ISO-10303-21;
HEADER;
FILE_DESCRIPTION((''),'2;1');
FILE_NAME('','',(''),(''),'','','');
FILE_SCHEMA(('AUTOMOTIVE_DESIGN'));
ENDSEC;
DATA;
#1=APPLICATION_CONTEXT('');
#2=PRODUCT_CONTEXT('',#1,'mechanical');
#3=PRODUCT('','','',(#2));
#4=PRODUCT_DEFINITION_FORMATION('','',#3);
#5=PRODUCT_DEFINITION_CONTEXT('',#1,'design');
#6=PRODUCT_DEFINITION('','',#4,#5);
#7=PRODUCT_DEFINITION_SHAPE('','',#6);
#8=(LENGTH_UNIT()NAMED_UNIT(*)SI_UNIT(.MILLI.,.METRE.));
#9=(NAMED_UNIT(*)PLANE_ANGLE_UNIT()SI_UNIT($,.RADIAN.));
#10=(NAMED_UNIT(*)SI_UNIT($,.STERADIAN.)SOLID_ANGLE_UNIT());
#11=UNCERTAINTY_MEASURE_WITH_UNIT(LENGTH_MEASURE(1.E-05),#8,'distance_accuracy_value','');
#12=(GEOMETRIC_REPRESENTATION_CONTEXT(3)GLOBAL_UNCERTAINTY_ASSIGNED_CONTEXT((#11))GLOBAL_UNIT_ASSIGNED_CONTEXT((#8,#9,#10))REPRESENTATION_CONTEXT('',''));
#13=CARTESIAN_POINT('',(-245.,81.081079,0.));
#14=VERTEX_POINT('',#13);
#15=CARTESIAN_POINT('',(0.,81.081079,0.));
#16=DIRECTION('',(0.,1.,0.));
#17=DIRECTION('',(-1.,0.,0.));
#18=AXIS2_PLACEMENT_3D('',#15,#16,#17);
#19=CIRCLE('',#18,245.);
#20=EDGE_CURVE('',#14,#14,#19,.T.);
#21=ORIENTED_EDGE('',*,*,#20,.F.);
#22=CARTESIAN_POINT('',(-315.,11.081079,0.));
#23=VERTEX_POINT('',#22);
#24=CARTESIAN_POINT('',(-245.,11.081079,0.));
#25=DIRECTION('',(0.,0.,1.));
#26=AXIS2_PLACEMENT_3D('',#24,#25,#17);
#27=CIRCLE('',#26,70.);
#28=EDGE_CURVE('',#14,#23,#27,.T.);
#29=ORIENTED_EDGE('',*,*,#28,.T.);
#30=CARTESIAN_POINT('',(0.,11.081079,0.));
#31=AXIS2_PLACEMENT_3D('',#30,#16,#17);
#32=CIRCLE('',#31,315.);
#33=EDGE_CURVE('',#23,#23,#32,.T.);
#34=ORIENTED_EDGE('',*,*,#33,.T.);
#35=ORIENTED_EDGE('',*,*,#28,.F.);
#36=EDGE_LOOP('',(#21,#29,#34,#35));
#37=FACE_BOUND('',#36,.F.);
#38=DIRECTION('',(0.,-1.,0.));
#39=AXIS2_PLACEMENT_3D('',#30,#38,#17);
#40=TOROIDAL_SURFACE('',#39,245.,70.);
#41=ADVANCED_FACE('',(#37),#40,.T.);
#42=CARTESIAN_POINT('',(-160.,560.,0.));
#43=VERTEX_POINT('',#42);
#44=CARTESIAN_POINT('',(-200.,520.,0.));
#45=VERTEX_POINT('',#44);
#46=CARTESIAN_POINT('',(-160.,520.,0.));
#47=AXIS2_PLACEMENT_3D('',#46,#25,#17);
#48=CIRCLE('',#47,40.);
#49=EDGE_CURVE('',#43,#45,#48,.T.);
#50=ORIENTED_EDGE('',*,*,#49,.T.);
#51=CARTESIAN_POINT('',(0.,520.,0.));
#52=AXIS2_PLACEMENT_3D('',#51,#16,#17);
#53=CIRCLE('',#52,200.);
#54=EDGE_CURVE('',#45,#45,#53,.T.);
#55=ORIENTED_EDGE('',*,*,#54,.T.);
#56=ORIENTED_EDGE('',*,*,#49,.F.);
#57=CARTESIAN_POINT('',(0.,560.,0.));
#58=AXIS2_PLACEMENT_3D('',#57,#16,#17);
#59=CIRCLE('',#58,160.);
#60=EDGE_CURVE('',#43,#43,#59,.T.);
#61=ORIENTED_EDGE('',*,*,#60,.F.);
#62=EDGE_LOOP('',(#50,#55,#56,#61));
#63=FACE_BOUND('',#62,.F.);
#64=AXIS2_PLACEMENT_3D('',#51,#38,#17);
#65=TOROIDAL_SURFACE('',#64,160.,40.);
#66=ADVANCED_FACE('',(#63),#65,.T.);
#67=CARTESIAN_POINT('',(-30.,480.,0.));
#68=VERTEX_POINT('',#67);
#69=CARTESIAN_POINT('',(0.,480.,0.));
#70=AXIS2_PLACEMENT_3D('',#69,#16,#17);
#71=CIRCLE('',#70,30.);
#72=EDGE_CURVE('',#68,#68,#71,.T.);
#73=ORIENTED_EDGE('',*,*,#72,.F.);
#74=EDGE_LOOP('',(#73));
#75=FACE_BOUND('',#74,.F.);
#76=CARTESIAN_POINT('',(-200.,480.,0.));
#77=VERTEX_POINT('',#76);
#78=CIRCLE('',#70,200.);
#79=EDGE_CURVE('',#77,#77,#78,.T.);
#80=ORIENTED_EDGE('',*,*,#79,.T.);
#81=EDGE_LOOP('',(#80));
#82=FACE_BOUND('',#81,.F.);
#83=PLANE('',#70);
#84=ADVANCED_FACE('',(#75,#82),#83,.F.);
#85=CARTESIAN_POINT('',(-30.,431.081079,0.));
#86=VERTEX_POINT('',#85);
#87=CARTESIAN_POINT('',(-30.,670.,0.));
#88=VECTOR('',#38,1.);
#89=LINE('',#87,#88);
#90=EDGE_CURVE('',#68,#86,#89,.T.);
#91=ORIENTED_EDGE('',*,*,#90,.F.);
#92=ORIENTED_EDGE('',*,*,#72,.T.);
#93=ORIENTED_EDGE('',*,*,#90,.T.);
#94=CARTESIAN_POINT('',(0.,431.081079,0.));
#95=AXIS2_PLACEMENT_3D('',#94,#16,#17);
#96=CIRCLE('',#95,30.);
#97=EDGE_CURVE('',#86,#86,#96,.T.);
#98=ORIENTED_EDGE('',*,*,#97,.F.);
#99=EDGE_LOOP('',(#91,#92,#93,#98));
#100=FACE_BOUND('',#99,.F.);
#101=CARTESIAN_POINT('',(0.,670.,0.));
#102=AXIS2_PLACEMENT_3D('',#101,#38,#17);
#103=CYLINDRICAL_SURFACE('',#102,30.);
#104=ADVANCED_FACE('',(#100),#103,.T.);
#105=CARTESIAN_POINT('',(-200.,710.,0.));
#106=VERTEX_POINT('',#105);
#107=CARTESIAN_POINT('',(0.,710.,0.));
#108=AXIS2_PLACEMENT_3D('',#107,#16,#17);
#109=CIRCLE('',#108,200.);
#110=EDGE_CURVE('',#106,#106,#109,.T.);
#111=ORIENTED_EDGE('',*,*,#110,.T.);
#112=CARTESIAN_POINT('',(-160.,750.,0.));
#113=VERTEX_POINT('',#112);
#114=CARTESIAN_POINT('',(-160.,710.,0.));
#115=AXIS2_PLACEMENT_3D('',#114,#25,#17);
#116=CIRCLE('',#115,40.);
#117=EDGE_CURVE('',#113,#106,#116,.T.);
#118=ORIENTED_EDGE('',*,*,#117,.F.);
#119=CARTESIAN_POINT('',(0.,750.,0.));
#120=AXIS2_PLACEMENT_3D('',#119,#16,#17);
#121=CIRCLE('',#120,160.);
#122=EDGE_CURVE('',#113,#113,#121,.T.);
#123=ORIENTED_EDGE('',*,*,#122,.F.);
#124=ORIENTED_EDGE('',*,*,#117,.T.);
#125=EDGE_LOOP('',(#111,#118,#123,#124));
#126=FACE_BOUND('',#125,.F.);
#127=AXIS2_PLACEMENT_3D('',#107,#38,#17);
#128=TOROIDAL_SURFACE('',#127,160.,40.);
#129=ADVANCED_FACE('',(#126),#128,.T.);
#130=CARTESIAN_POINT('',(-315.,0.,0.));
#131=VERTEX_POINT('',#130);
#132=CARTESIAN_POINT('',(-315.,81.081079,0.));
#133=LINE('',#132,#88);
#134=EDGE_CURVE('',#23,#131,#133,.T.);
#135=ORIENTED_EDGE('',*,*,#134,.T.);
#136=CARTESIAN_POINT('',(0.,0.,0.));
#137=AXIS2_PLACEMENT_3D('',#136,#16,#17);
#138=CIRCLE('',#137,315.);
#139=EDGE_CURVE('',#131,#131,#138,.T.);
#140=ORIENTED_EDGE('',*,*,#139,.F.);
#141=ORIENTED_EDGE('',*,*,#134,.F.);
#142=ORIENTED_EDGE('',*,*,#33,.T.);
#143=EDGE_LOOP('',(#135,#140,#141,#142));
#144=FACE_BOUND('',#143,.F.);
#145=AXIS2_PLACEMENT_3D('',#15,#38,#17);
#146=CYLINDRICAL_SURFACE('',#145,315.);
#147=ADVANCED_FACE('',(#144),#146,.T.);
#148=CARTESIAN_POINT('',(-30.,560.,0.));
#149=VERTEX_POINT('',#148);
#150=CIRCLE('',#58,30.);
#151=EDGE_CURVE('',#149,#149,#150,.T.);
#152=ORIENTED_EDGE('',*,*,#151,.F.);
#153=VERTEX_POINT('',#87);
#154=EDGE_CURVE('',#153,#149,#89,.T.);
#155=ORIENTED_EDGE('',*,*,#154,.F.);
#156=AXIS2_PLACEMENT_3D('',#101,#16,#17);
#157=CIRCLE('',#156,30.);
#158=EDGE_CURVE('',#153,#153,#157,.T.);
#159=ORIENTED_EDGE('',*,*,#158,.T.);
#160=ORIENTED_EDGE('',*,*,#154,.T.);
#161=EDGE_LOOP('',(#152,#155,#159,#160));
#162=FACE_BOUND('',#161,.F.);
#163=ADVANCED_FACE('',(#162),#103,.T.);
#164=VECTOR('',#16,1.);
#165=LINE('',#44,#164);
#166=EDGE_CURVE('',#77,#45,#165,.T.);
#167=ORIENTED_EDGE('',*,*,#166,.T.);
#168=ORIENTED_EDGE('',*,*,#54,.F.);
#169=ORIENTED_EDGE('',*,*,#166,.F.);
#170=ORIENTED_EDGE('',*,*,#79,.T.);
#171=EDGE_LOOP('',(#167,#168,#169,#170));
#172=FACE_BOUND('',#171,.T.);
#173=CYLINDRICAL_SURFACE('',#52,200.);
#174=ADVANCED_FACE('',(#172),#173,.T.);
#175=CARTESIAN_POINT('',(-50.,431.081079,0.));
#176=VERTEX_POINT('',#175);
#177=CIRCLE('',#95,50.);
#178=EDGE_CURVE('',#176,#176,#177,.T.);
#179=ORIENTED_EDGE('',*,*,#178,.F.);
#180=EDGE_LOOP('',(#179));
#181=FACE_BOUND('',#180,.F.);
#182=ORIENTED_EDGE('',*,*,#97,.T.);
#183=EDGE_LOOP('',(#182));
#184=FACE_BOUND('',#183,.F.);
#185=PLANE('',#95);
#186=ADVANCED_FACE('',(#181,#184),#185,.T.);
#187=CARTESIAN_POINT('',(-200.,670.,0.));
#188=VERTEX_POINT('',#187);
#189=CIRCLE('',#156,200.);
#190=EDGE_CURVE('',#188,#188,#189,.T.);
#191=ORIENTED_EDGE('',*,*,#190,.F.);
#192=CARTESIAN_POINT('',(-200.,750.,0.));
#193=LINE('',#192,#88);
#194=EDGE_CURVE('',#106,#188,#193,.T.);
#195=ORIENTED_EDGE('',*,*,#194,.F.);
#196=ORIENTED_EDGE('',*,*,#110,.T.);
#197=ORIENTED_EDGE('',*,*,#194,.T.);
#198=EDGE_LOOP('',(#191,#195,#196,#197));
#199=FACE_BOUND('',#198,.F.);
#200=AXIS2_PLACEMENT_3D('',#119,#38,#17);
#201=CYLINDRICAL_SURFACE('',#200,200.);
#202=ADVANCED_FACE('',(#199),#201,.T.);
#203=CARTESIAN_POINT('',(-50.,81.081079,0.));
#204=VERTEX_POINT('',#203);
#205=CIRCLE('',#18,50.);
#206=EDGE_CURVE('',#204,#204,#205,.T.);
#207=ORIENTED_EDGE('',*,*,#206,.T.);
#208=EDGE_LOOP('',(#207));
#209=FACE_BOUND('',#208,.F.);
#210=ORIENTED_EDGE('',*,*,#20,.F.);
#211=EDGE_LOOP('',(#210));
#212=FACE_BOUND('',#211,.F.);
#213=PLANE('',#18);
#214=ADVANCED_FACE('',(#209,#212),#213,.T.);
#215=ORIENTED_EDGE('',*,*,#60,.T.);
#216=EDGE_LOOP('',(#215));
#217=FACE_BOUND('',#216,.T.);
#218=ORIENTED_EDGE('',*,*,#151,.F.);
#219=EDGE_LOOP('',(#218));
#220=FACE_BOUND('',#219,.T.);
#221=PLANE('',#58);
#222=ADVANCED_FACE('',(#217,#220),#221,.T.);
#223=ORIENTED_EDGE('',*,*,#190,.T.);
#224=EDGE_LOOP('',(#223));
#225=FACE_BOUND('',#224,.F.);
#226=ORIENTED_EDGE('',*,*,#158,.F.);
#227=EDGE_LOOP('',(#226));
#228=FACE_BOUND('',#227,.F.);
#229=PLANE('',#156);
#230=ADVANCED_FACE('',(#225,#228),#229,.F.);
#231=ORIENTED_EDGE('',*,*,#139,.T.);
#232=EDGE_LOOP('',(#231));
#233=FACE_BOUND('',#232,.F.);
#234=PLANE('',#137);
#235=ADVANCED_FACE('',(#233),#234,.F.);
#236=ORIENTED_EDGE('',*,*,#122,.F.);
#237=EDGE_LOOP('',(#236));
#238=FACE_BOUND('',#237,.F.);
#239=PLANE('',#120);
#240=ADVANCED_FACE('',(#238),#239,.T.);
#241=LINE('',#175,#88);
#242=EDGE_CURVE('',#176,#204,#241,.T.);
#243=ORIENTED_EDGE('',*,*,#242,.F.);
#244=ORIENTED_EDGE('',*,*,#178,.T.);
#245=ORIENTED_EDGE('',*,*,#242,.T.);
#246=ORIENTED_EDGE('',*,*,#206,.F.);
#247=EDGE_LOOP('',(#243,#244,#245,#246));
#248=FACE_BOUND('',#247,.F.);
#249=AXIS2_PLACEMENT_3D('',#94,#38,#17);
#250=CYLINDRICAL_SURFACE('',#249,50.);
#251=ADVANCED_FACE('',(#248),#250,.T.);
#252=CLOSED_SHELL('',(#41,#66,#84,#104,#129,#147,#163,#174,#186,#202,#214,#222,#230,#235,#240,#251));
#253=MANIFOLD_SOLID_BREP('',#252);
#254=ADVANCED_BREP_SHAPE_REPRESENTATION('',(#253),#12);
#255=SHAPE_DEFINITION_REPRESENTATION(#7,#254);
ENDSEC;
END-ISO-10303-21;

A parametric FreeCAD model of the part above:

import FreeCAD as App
import Part
import Sketcher

V = App.Vector


def edges_at(feature, points):
    """Names of the edges that pass closest to the given points."""
    edges = feature.Shape.Edges
    near = lambda p: min(range(len(edges)), key=lambda i: edges[i].distToShape(Part.Vertex(*p))[0])
    return sorted({f"Edge{near(p) + 1}" for p in points})

doc = App.newDocument("Part")
params = doc.addObject("Spreadsheet::Sheet", "Params")
for row, (alias, value) in enumerate([
    ("sketch1_width", "200 mm"),
    ("sketch1_width2", "170 mm"),
    ("sketch1_width3", "20 mm"),
    ("sketch1_width4", "265 mm"),
    ("sketch1_height", "80 mm"),
    ("revolution_angle", "360 deg"),
    ("fillet_radius", "40 mm"),
    ("fillet2_radius", "40 mm"),
    ("fillet3_radius", "70 mm"),
], start=1):
    params.set(f"A{row}", alias)
    params.set(f"B{row}", "=" + value)
    params.setAlias(f"B{row}", alias)

body = doc.addObject("PartDesign::Body", "Body")

sketch1 = doc.addObject("Sketcher::SketchObject", "Sketch")
body.addObject(sketch1)
sketch1.AttachmentSupport = (doc.XY_Plane, [""])
sketch1.MapMode = "FlatFace"
sketch1.addGeometry([
    Part.LineSegment(V(0, 750, 0), V(-200, 750, 0)),
    Part.LineSegment(V(-200, 750, 0), V(-200, 670, 0)),
    Part.LineSegment(V(-200, 670, 0), V(-30, 670, 0)),
    Part.LineSegment(V(-30, 670, 0), V(-30, 560, 0)),
    Part.LineSegment(V(-30, 560, 0), V(-200, 560, 0)),
    Part.LineSegment(V(-200, 560, 0), V(-200, 480, 0)),
    Part.LineSegment(V(-200, 480, 0), V(-30, 480, 0)),
    Part.LineSegment(V(-30, 480, 0), V(-30, 431, 0)),
    Part.LineSegment(V(-30, 431, 0), V(-50, 431, 0)),
    Part.LineSegment(V(-50, 431, 0), V(-50, 81, 0)),
    Part.LineSegment(V(-50, 81, 0), V(-315, 81, 0)),
    Part.LineSegment(V(-315, 81, 0), V(-315, 0, 0)),
    Part.LineSegment(V(-315, 0, 0), V(0, 0, 0)),
    Part.LineSegment(V(0, 0, 0), V(0, 750, 0)),
], False)
sketch1.addConstraint([
    Sketcher.Constraint("Coincident", 0, 2, 1, 1),
    Sketcher.Constraint("Coincident", 1, 2, 2, 1),
    Sketcher.Constraint("Coincident", 2, 2, 3, 1),
    Sketcher.Constraint("Coincident", 3, 2, 4, 1),
    Sketcher.Constraint("Coincident", 4, 2, 5, 1),
    Sketcher.Constraint("Coincident", 5, 2, 6, 1),
    Sketcher.Constraint("Coincident", 6, 2, 7, 1),
    Sketcher.Constraint("Coincident", 7, 2, 8, 1),
    Sketcher.Constraint("Coincident", 8, 2, 9, 1),
    Sketcher.Constraint("Coincident", 9, 2, 10, 1),
    Sketcher.Constraint("Coincident", 10, 2, 11, 1),
    Sketcher.Constraint("Coincident", 11, 2, 12, 1),
    Sketcher.Constraint("Coincident", 12, 2, 13, 1),
    Sketcher.Constraint("Coincident", 13, 2, 0, 1),
    Sketcher.Constraint("Horizontal", 0),
    Sketcher.Constraint("Vertical", 1),
    Sketcher.Constraint("Horizontal", 2),
    Sketcher.Constraint("Vertical", 3),
    Sketcher.Constraint("Horizontal", 4),
    Sketcher.Constraint("Vertical", 5),
    Sketcher.Constraint("Horizontal", 6),
    Sketcher.Constraint("Vertical", 7),
    Sketcher.Constraint("Horizontal", 8),
    Sketcher.Constraint("Vertical", 9),
    Sketcher.Constraint("Horizontal", 10),
    Sketcher.Constraint("Vertical", 11),
    Sketcher.Constraint("Horizontal", 12),
    Sketcher.Constraint("Vertical", 13),
    Sketcher.Constraint("Coincident", 12, 2, -1, 1),
    Sketcher.Constraint("Vertical", 1, 2, 4, 2),
    Sketcher.Constraint("Vertical", 3, 2, 6, 2),
    Sketcher.Constraint("Equal", 1, 5),
    Sketcher.Constraint("DistanceX", 0, 2, 0, 1, 200.0),
    Sketcher.Constraint("DistanceX", 2, 1, 2, 2, 170.0),
    Sketcher.Constraint("DistanceX", 8, 2, 8, 1, 20.0),
    Sketcher.Constraint("DistanceX", 10, 2, 10, 1, 265.0),
    Sketcher.Constraint("DistanceY", 1, 2, 1, 1, 80.0),
    Sketcher.Constraint("DistanceY", 3, 2, 3, 1, 110.0),
    Sketcher.Constraint("DistanceY", 9, 2, 9, 1, 350.0),
    Sketcher.Constraint("DistanceY", 13, 1, 13, 2, 750.0),
    Sketcher.Constraint("DistanceY", 7, 2, 7, 1, 48.918921),
])
sketch1.setExpression("Constraints[32]", "Params.sketch1_width")
sketch1.setExpression("Constraints[33]", "Params.sketch1_width2")
sketch1.setExpression("Constraints[34]", "Params.sketch1_width3")
sketch1.setExpression("Constraints[35]", "Params.sketch1_width4")
sketch1.setExpression("Constraints[36]", "Params.sketch1_height")
revolution = doc.addObject("PartDesign::Revolution", "Revolution")
body.addObject(revolution)
revolution.Profile = sketch1
revolution.ReferenceAxis = (sketch1, ["V_Axis"])
revolution.setExpression("Angle", "Params.revolution_angle")
doc.recompute()

fillet = doc.addObject("PartDesign::Fillet", "Fillet")
body.addObject(fillet)
fillet.Base = (revolution, edges_at(revolution, [(200, 750, 0)]))
fillet.setExpression("Radius", "Params.fillet_radius")
doc.recompute()

fillet2 = doc.addObject("PartDesign::Fillet", "Fillet001")
body.addObject(fillet2)
fillet2.Base = (fillet, edges_at(fillet, [(200, 560, 0)]))
fillet2.setExpression("Radius", "Params.fillet2_radius")
doc.recompute()

fillet3 = doc.addObject("PartDesign::Fillet", "Fillet002")
body.addObject(fillet3)
fillet3.Base = (fillet2, edges_at(fillet2, [(315, 81.081, 0)]))
fillet3.setExpression("Radius", "Params.fillet3_radius")

doc.recompute()
